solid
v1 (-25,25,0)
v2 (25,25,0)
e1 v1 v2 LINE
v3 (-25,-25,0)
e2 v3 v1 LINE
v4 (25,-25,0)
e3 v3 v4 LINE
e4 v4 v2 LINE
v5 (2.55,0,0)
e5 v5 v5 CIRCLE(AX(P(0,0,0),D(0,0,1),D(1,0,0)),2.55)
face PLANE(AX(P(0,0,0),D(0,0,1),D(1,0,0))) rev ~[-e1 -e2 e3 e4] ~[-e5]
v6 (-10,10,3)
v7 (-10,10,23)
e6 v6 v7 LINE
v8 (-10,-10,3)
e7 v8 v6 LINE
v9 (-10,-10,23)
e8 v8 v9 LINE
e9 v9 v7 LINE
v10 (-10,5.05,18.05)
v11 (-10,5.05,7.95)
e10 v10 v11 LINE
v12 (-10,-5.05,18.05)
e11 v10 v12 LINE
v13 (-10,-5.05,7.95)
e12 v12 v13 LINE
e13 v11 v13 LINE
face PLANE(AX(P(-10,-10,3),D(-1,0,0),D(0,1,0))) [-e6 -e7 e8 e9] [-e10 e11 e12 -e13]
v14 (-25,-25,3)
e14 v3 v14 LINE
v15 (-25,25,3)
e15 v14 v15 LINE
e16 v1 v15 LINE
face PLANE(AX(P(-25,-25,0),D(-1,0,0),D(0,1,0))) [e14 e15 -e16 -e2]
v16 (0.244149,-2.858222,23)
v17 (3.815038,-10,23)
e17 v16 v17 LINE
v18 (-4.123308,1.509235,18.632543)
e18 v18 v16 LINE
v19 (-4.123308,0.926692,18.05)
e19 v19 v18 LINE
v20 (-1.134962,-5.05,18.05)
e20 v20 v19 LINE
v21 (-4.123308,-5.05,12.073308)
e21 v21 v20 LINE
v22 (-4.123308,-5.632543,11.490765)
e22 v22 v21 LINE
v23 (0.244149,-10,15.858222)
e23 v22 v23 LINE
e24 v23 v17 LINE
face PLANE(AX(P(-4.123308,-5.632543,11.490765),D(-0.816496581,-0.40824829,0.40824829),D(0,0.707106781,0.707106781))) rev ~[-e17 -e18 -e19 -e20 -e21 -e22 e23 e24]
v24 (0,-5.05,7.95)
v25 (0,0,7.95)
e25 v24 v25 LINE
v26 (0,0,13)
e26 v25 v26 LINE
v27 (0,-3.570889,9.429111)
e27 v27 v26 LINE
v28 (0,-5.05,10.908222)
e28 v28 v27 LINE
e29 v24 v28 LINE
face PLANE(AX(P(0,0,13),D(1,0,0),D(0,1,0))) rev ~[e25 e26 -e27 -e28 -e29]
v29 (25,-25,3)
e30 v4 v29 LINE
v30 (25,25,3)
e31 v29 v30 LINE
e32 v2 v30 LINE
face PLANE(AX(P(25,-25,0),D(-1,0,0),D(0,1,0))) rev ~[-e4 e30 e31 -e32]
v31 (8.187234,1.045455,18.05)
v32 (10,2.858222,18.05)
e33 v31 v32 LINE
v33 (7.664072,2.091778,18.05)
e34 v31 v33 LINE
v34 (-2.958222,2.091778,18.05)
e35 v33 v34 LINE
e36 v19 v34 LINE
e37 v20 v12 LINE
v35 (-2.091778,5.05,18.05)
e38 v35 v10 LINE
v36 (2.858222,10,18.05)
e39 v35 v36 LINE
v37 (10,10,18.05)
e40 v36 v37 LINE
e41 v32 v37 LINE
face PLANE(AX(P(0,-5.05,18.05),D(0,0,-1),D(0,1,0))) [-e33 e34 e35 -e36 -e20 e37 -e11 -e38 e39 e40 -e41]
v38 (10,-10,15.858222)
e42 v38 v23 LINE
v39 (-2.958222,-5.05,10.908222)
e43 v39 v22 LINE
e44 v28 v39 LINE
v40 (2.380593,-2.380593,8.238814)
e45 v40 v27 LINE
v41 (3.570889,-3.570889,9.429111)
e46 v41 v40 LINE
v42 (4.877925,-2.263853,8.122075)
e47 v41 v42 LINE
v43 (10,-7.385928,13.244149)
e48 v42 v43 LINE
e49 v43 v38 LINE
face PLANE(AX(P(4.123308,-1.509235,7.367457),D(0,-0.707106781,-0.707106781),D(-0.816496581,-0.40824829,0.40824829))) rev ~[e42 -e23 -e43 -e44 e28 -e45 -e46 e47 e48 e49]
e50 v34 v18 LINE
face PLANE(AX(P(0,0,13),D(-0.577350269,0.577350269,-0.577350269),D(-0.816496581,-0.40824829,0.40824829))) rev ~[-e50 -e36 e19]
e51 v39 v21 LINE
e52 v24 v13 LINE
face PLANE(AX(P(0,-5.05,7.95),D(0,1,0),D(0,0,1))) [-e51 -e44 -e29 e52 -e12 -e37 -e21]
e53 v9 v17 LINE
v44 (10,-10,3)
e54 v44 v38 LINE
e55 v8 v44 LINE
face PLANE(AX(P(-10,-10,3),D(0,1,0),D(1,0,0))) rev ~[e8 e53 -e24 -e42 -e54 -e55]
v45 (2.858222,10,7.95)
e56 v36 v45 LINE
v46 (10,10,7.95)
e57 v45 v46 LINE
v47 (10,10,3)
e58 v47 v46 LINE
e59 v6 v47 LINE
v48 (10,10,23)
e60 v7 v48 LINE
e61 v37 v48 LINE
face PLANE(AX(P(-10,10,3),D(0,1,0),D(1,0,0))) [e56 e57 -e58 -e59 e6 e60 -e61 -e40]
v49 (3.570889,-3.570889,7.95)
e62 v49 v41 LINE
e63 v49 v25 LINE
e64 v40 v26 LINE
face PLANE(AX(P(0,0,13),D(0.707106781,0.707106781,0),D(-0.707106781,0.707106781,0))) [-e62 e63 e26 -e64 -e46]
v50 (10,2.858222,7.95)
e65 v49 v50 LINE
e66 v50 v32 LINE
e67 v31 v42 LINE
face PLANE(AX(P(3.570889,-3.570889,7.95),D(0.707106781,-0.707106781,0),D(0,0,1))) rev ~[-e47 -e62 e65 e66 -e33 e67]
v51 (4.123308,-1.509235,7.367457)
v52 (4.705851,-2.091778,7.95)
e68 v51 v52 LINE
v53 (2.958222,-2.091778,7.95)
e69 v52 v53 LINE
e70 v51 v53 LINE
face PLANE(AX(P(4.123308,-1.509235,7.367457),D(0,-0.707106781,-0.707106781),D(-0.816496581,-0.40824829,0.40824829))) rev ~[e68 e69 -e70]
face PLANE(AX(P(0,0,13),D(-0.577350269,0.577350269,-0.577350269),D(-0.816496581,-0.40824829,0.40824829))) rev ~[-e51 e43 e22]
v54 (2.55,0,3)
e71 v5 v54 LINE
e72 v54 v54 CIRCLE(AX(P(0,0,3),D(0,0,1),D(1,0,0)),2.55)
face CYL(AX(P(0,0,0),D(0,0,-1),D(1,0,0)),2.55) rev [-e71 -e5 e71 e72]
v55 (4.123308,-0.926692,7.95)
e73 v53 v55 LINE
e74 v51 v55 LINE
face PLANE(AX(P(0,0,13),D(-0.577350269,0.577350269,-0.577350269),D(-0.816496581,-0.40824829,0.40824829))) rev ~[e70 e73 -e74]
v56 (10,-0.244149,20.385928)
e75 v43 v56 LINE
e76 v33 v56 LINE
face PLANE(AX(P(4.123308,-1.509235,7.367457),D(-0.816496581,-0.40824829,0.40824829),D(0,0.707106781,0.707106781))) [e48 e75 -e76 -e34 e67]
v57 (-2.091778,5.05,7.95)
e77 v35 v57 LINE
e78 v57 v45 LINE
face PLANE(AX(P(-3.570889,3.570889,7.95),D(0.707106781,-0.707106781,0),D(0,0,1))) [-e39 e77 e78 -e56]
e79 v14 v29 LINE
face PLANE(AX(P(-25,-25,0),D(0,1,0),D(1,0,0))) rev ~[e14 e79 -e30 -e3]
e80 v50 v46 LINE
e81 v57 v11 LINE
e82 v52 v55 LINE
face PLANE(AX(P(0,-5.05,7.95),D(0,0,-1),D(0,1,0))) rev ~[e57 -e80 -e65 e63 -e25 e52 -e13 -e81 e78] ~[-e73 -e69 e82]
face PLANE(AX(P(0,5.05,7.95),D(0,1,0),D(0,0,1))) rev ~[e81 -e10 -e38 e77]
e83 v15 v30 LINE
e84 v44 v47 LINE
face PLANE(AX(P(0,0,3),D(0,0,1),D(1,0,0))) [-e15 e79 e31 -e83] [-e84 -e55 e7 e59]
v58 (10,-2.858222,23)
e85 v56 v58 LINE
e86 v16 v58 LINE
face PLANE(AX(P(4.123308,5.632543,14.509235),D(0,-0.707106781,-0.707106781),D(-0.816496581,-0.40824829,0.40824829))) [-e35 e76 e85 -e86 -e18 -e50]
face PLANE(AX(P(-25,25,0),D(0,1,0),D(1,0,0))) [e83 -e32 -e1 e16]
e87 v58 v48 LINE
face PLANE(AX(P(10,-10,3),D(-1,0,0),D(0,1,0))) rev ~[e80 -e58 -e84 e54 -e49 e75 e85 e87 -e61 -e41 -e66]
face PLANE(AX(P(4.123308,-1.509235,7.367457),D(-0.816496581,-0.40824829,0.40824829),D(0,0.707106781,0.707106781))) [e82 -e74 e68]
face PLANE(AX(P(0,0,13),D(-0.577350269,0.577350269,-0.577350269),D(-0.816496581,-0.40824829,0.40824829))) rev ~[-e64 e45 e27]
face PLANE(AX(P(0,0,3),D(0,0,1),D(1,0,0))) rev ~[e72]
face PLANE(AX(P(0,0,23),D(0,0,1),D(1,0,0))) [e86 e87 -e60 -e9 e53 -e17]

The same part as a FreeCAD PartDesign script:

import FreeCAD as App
import Part
import Sketcher


def add_polygon(sketch, points):
    """Adds a closed chain of lines whose ends are joined by coincident constraints."""
    first, n = sketch.GeometryCount, len(points)
    for a, b in zip(points, points[1:] + points[:1]):
        sketch.addGeometry(Part.LineSegment(App.Vector(*a, 0), App.Vector(*b, 0)), False)
    for i in range(n):
        sketch.addConstraint(Sketcher.Constraint("Coincident", first + i, 2, first + (i + 1) % n, 1))

doc = App.newDocument("Part")
body = doc.addObject("PartDesign::Body", "Body")

# Sketch on XY plane
sketch1 = body.newObject("Sketcher::SketchObject", "Sketch")
sketch1.AttachmentSupport = (doc.getObject("XY_Plane"), [""])
sketch1.MapMode = "FlatFace"
add_polygon(sketch1, [(-25, 25), (-25, -25), (25, -25), (25, 25)])  # lines 0-3
sketch1.addGeometry(Part.Circle(App.Vector(0, 0, 0), App.Vector(0, 0, 1), 2.55), False)  # 4
sketch1.addConstraint(Sketcher.Constraint("Vertical", 0))
sketch1.addConstraint(Sketcher.Constraint("Horizontal", 1))
sketch1.addConstraint(Sketcher.Constraint("Vertical", 2))
sketch1.addConstraint(Sketcher.Constraint("Horizontal", 3))
sketch1.addConstraint(Sketcher.Constraint("Coincident", 4, 3, -1, 1))
sketch1.addConstraint(Sketcher.Constraint("Symmetric", 0, 2, 2, 2, -1, 1))
sketch1.addConstraint(Sketcher.Constraint("Equal", 3, 0))
sketch1.addConstraint(Sketcher.Constraint("Diameter", 4, 5.1))
sketch1.addConstraint(Sketcher.Constraint("DistanceX", 1, 1, 1, 2, 50.0))
pad1 = body.newObject("PartDesign::Pad", "Pad")
pad1.Profile = sketch1
pad1.Length = 3

# Sketch on XY plane
sketch2 = body.newObject("Sketcher::SketchObject", "Sketch001")
sketch2.AttachmentSupport = (doc.getObject("XY_Plane"), [""])
sketch2.MapMode = "FlatFace"
sketch2.AttachmentOffset = App.Placement(App.Vector(0, 0, 3), App.Rotation())
add_polygon(sketch2, [(-10, 10), (-10, -10), (10, -10), (10, 10)])  # lines 0-3
sketch2.addConstraint(Sketcher.Constraint("Vertical", 0))
sketch2.addConstraint(Sketcher.Constraint("Horizontal", 1))
sketch2.addConstraint(Sketcher.Constraint("Vertical", 2))
sketch2.addConstraint(Sketcher.Constraint("Horizontal", 3))
sketch2.addConstraint(Sketcher.Constraint("Symmetric", 0, 2, 2, 2, -1, 1))
sketch2.addConstraint(Sketcher.Constraint("Equal", 3, 0))
sketch2.addConstraint(Sketcher.Constraint("DistanceX", 1, 1, 1, 2, 20.0))
pad2 = body.newObject("PartDesign::Pad", "Pad001")
pad2.Profile = sketch2
pad2.Length = 20

# Sketch on YZ plane
sketch3 = body.newObject("Sketcher::SketchObject", "Sketch002")
sketch3.AttachmentSupport = (doc.getObject("YZ_Plane"), [""])
sketch3.MapMode = "FlatFace"
add_polygon(sketch3, [(-5.05, 18.05), (-5.05, 7.95), (5.05, 7.95), (5.05, 18.05)])  # lines 0-3
sketch3.addConstraint(Sketcher.Constraint("Vertical", 0))
sketch3.addConstraint(Sketcher.Constraint("Horizontal", 1))
sketch3.addConstraint(Sketcher.Constraint("Vertical", 2))
sketch3.addConstraint(Sketcher.Constraint("Horizontal", 3))
sketch3.addConstraint(Sketcher.Constraint("Equal", 3, 0))
sketch3.addConstraint(Sketcher.Constraint("DistanceX", 1, 1, 1, 2, 10.1))
sketch3.addConstraint(Sketcher.Constraint("DistanceX", 0, 2, -1, 1, 5.05))
sketch3.addConstraint(Sketcher.Constraint("DistanceY", -1, 1, 0, 2, 7.95))
pocket1 = body.newObject("PartDesign::Pocket", "Pocket")
pocket1.Profile = sketch3
pocket1.Length = 25

# Sketch on an angled plane
sketch4 = body.newObject("Sketcher::SketchObject", "Sketch003")
sketch4.Placement = App.Placement(App.Vector(0, 0, 0), App.Rotation(App.Vector(-0.707106781, 0.707106781, 0), App.Vector(0, 0, 0.999999999), App.Vector(0.707106781, 0.707106781, 0), "ZXY"))
add_polygon(sketch4, [(-5.05, 18.05), (-5.05, 7.95), (5.05, 7.95), (5.05, 18.05)])  # lines 0-3
sketch4.addConstraint(Sketcher.Constraint("Vertical", 0))
sketch4.addConstraint(Sketcher.Constraint("Horizontal", 1))
sketch4.addConstraint(Sketcher.Constraint("Vertical", 2))
sketch4.addConstraint(Sketcher.Constraint("Horizontal", 3))
sketch4.addConstraint(Sketcher.Constraint("Equal", 3, 0))
sketch4.addConstraint(Sketcher.Constraint("DistanceX", 1, 1, 1, 2, 10.1))
sketch4.addConstraint(Sketcher.Constraint("DistanceX", 0, 2, -1, 1, 5.05))
sketch4.addConstraint(Sketcher.Constraint("DistanceY", -1, 1, 0, 2, 7.95))
pocket2 = body.newObject("PartDesign::Pocket", "Pocket001")
pocket2.Profile = sketch4
pocket2.Length = 25
pocket2.Reversed = True

# Sketch on an angled plane
sketch5 = body.newObject("Sketcher::SketchObject", "Sketch004")
sketch5.Placement = App.Placement(App.Vector(4.333333, -4.333333, 4.333333), App.Rotation(App.Vector(-0.816496581, -0.40824829, 0.40824829), App.Vector(0, 0.707106781, 0.707106781), App.Vector(-0.577350269, 0.577350269, -0.577350269), "ZXY"))
add_polygon(sketch5, [(0.257228, 14.242388), (0.257228, 4.142388), (10.357228, 4.142388), (10.357228, 14.242388)])  # lines 0-3
sketch5.addConstraint(Sketcher.Constraint("Vertical", 0))
sketch5.addConstraint(Sketcher.Constraint("Horizontal", 1))
sketch5.addConstraint(Sketcher.Constraint("Vertical", 2))
sketch5.addConstraint(Sketcher.Constraint("Horizontal", 3))
sketch5.addConstraint(Sketcher.Constraint("Equal", 3, 0))
sketch5.addConstraint(Sketcher.Constraint("DistanceX", 1, 1, 1, 2, 10.1))
sketch5.addConstraint(Sketcher.Constraint("DistanceY", -1, 1, 0, 2, 4.142388))
sketch5.addConstraint(Sketcher.Constraint("DistanceX", -1, 1, 0, 2, 0.257228))
pocket3 = body.newObject("PartDesign::Pocket", "Pocket002")
pocket3.Profile = sketch5
pocket3.Length = 25

doc.recompute()
